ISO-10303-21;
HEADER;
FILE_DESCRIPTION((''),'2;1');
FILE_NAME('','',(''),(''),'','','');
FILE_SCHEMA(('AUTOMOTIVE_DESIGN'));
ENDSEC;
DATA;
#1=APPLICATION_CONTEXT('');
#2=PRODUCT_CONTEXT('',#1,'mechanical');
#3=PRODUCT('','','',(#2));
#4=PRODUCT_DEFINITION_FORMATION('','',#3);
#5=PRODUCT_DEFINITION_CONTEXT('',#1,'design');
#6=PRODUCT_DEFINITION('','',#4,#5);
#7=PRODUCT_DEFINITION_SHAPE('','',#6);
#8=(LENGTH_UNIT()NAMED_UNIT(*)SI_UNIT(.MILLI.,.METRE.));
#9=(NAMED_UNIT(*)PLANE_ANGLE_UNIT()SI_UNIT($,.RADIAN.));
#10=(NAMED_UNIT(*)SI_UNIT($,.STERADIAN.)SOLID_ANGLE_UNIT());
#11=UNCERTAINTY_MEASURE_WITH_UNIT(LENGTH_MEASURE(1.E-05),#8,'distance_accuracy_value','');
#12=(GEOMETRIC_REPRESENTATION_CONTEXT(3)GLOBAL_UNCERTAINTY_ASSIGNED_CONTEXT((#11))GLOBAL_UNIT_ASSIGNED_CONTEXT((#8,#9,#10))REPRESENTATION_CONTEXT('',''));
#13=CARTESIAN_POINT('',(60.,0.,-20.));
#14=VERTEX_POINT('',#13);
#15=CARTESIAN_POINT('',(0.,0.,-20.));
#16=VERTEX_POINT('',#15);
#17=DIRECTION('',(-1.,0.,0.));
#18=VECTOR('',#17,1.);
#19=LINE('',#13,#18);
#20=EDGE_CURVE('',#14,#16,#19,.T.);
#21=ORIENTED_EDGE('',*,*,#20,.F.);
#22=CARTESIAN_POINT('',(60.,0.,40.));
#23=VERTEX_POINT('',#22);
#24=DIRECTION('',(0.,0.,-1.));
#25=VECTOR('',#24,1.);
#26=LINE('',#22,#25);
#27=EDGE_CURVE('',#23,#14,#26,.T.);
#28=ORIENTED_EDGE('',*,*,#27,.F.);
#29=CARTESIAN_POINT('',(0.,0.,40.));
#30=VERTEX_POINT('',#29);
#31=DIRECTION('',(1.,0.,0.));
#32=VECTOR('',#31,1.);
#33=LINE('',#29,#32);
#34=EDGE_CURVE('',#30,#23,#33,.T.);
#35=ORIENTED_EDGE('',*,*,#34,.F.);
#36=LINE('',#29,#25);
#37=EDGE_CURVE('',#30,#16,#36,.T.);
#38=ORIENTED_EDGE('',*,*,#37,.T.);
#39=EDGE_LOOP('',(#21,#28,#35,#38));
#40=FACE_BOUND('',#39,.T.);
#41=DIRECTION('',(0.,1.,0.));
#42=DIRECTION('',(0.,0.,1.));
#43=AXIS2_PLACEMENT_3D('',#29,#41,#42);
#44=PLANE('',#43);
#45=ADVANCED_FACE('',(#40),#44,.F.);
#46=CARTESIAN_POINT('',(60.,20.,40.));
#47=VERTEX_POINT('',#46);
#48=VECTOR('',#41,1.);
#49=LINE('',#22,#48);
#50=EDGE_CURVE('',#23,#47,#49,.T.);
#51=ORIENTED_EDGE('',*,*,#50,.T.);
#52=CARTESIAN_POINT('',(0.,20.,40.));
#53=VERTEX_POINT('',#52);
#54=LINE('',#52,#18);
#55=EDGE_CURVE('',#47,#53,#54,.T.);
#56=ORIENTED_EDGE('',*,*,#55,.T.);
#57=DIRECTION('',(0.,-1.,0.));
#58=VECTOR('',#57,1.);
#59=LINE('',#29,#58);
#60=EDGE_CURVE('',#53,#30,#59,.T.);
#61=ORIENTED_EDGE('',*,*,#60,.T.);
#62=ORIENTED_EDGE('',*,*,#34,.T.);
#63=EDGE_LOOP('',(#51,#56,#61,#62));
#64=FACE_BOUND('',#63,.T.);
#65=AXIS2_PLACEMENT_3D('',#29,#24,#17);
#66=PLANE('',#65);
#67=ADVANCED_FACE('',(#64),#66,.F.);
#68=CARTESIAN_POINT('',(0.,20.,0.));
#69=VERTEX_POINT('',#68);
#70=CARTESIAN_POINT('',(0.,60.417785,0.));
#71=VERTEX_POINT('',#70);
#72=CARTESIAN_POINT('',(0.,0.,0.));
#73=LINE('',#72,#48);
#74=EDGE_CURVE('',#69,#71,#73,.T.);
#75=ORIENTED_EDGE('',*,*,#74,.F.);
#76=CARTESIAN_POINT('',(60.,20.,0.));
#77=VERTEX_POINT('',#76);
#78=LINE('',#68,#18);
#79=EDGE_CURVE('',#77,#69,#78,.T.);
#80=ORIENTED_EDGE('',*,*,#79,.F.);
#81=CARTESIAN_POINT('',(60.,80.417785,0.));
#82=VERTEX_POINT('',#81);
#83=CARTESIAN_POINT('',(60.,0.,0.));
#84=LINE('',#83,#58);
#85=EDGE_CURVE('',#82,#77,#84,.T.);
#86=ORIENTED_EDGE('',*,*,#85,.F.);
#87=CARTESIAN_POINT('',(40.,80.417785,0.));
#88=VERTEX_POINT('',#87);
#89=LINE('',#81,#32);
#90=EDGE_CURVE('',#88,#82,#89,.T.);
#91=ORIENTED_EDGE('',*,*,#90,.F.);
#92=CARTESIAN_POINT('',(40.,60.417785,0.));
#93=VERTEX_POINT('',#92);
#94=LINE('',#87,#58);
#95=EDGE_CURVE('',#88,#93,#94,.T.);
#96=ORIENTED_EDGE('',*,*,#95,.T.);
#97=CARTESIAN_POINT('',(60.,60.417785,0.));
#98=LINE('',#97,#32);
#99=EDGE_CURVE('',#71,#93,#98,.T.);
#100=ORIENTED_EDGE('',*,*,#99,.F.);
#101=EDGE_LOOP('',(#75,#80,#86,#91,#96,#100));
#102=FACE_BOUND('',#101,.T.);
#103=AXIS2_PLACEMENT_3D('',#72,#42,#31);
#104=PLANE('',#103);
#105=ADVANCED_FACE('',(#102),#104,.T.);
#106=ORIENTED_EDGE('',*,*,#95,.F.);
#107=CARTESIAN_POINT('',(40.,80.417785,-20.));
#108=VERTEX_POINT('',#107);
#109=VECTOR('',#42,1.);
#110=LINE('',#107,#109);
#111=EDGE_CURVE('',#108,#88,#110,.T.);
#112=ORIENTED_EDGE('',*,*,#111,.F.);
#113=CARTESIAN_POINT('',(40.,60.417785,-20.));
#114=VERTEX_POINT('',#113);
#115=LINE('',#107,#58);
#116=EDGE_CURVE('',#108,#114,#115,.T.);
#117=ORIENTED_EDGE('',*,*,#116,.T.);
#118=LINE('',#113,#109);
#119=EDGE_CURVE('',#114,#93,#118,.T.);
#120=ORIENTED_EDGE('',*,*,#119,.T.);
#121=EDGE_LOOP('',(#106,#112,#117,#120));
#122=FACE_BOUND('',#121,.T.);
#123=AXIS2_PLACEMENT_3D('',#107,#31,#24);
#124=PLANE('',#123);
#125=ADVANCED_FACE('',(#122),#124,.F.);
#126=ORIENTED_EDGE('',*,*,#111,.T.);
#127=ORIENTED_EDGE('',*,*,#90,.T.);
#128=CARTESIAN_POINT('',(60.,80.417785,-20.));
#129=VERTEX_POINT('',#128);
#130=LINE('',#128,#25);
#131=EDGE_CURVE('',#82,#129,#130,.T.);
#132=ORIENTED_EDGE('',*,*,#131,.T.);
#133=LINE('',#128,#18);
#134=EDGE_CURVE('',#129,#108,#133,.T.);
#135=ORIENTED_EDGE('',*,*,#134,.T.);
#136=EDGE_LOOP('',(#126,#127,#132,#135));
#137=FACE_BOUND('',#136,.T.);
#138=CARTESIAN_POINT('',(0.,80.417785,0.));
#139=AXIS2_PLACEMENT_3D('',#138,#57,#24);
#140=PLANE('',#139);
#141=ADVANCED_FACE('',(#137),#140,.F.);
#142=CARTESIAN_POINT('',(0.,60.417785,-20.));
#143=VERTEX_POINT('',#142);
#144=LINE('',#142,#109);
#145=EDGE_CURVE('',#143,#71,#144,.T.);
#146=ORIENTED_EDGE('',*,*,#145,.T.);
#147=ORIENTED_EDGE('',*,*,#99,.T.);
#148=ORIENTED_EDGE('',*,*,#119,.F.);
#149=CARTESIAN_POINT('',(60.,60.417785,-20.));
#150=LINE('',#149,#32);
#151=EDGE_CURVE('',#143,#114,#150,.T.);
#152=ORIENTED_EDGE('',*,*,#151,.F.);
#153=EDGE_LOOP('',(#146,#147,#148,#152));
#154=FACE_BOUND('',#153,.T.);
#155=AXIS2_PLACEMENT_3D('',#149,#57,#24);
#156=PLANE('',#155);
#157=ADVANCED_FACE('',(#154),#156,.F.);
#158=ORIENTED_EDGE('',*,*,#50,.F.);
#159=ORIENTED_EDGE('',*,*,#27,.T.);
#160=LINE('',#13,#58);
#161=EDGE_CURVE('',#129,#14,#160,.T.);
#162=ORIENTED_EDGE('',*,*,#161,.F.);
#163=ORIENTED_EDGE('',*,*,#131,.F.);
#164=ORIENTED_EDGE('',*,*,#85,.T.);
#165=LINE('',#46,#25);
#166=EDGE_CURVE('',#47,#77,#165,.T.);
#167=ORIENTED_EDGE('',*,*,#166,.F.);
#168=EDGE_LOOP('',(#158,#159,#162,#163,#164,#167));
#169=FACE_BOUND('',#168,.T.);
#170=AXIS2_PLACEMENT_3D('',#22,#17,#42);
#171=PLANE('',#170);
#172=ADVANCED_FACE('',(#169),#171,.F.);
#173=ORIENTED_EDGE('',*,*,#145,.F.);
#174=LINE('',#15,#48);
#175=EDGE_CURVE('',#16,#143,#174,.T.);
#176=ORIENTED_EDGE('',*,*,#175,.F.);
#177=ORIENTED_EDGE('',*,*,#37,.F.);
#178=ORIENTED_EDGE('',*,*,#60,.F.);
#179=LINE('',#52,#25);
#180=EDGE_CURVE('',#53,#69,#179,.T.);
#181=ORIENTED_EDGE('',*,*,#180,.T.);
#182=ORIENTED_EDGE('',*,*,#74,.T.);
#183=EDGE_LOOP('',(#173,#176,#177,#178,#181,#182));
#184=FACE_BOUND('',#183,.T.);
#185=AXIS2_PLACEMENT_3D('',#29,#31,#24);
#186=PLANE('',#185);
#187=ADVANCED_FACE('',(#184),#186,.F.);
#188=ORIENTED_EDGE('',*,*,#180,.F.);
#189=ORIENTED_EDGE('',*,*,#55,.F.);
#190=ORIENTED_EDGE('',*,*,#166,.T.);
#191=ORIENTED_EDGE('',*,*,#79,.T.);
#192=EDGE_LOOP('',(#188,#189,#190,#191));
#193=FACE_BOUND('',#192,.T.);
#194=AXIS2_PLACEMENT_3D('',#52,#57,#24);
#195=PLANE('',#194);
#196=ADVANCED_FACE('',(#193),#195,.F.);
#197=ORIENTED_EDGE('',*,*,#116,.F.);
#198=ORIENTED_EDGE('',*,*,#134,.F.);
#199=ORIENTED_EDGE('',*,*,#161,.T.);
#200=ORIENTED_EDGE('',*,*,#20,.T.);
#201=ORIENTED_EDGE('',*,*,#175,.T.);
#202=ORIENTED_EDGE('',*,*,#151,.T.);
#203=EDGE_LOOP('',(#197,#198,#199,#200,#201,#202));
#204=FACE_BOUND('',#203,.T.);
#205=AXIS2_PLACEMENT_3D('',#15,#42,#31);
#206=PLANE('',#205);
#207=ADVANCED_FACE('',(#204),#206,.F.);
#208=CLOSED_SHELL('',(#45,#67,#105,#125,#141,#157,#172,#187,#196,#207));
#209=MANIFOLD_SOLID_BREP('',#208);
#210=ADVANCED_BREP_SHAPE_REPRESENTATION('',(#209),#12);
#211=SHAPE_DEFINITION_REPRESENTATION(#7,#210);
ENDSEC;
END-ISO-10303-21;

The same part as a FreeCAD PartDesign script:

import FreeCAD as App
import Part
import Sketcher
Q = App.Units.Quantity

doc = App.newDocument("Part")
params = doc.addObject("Spreadsheet::Sheet", "Params")
for row, (alias, value) in enumerate([
    ("sketch1_width", "60 mm"),
    ("sketch1_height", "20 mm"),
    ("pad1_length", "40 mm"),
    ("sketch2_width", "60 mm"),
    ("pad2_length", "20 mm"),
    ("sketch3_width", "20 mm"),
    ("pad3_length", "20 mm"),
], start=1):
    params.set(f"A{row}", alias)
    params.set(f"B{row}", "=" + value)
    params.setAlias(f"B{row}", alias)

body = doc.addObject("PartDesign::Body", "Body")

sketch1 = doc.addObject("Sketcher::SketchObject", "Sketch")
body.addObject(sketch1)
sketch1.AttachmentSupport = (doc.XY_Plane, [""])
sketch1.MapMode = "FlatFace"
sketch1.addGeometry([
    Part.LineSegment(App.Vector(0, 20, 0), App.Vector(0, 0, 0)),
    Part.LineSegment(App.Vector(0, 0, 0), App.Vector(60, 0, 0)),
    Part.LineSegment(App.Vector(60, 0, 0), App.Vector(60, 20, 0)),
    Part.LineSegment(App.Vector(60, 20, 0), App.Vector(0, 20, 0)),
], False)
sketch1.addConstraint([
    Sketcher.Constraint("Coincident", 0, 2, 1, 1),
    Sketcher.Constraint("Coincident", 1, 2, 2, 1),
    Sketcher.Constraint("Coincident", 2, 2, 3, 1),
    Sketcher.Constraint("Coincident", 3, 2, 0, 1),
    Sketcher.Constraint("Vertical", 0),
    Sketcher.Constraint("Horizontal", 1),
    Sketcher.Constraint("Vertical", 2),
    Sketcher.Constraint("Horizontal", 3),
    Sketcher.Constraint("Coincident", 0, 2, -1, 1),
    Sketcher.Constraint("DistanceX", 1, 1, 1, 2, Q("60 mm")),
    Sketcher.Constraint("DistanceY", 0, 2, 0, 1, Q("20 mm")),
])
sketch1.setExpression("Constraints[9]", "Params.sketch1_width")
sketch1.setExpression("Constraints[10]", "Params.sketch1_height")
pad1 = doc.addObject("PartDesign::Pad", "Pad")
body.addObject(pad1)
pad1.Profile = sketch1
pad1.setExpression("Length", "Params.pad1_length")

sketch2 = doc.addObject("Sketcher::SketchObject", "Sketch001")
body.addObject(sketch2)
sketch2.AttachmentSupport = (doc.XY_Plane, [""])
sketch2.MapMode = "FlatFace"
sketch2.addGeometry([
    Part.LineSegment(App.Vector(60, 60, 0), App.Vector(60, 0, 0)),
    Part.LineSegment(App.Vector(60, 0, 0), App.Vector(0, 0, 0)),
    Part.LineSegment(App.Vector(0, 0, 0), App.Vector(0, 60, 0)),
    Part.LineSegment(App.Vector(0, 60, 0), App.Vector(60, 60, 0)),
], False)
sketch2.addConstraint([
    Sketcher.Constraint("Coincident", 0, 2, 1, 1),
    Sketcher.Constraint("Coincident", 1, 2, 2, 1),
    Sketcher.Constraint("Coincident", 2, 2, 3, 1),
    Sketcher.Constraint("Coincident", 3, 2, 0, 1),
    Sketcher.Constraint("Vertical", 0),
    Sketcher.Constraint("Horizontal", 1),
    Sketcher.Constraint("Vertical", 2),
    Sketcher.Constraint("Horizontal", 3),
    Sketcher.Constraint("Coincident", 1, 2, -1, 1),
    Sketcher.Constraint("DistanceX", 1, 2, 1, 1, Q("60 mm")),
    Sketcher.Constraint("DistanceY", 0, 2, 0, 1, Q("60.417785 mm")),
])
sketch2.setExpression("Constraints[9]", "Params.sketch2_width")
pad2 = doc.addObject("PartDesign::Pad", "Pad001")
body.addObject(pad2)
pad2.Profile = sketch2
pad2.setExpression("Length", "Params.pad2_length")
pad2.Reversed = True

sketch3 = doc.addObject("Sketcher::SketchObject", "Sketch002")
body.addObject(sketch3)
sketch3.AttachmentSupport = (doc.XZ_Plane, [""])
sketch3.MapMode = "FlatFace"
sketch3.AttachmentOffset = App.Placement(App.Vector(0, 0, -60.417785), App.Rotation())
sketch3.addGeometry([
    Part.LineSegment(App.Vector(40, -20, 0), App.Vector(40, 0, 0)),
    Part.LineSegment(App.Vector(40, 0, 0), App.Vector(60, 0, 0)),
    Part.LineSegment(App.Vector(60, 0, 0), App.Vector(60, -20, 0)),
    Part.LineSegment(App.Vector(60, -20, 0), App.Vector(40, -20, 0)),
], False)
sketch3.addConstraint([
    Sketcher.Constraint("Coincident", 0, 2, 1, 1),
    Sketcher.Constraint("Coincident", 1, 2, 2, 1),
    Sketcher.Constraint("Coincident", 2, 2, 3, 1),
    Sketcher.Constraint("Coincident", 3, 2, 0, 1),
    Sketcher.Constraint("Vertical", 0),
    Sketcher.Constraint("Horizontal", 1),
    Sketcher.Constraint("Vertical", 2),
    Sketcher.Constraint("Horizontal", 3),
    Sketcher.Constraint("PointOnObject", 0, 2, -1),
    Sketcher.Constraint("Equal", 3, 0),
    Sketcher.Constraint("DistanceX", 1, 1, 1, 2, Q("20 mm")),
    Sketcher.Constraint("DistanceX", -1, 1, 0, 2, Q("40 mm")),
])
sketch3.setExpression("Constraints[10]", "Params.sketch3_width")
pad3 = doc.addObject("PartDesign::Pad", "Pad002")
body.addObject(pad3)
pad3.Profile = sketch3
pad3.setExpression("Length", "Params.pad3_length")
pad3.Reversed = True

doc.recompute()
